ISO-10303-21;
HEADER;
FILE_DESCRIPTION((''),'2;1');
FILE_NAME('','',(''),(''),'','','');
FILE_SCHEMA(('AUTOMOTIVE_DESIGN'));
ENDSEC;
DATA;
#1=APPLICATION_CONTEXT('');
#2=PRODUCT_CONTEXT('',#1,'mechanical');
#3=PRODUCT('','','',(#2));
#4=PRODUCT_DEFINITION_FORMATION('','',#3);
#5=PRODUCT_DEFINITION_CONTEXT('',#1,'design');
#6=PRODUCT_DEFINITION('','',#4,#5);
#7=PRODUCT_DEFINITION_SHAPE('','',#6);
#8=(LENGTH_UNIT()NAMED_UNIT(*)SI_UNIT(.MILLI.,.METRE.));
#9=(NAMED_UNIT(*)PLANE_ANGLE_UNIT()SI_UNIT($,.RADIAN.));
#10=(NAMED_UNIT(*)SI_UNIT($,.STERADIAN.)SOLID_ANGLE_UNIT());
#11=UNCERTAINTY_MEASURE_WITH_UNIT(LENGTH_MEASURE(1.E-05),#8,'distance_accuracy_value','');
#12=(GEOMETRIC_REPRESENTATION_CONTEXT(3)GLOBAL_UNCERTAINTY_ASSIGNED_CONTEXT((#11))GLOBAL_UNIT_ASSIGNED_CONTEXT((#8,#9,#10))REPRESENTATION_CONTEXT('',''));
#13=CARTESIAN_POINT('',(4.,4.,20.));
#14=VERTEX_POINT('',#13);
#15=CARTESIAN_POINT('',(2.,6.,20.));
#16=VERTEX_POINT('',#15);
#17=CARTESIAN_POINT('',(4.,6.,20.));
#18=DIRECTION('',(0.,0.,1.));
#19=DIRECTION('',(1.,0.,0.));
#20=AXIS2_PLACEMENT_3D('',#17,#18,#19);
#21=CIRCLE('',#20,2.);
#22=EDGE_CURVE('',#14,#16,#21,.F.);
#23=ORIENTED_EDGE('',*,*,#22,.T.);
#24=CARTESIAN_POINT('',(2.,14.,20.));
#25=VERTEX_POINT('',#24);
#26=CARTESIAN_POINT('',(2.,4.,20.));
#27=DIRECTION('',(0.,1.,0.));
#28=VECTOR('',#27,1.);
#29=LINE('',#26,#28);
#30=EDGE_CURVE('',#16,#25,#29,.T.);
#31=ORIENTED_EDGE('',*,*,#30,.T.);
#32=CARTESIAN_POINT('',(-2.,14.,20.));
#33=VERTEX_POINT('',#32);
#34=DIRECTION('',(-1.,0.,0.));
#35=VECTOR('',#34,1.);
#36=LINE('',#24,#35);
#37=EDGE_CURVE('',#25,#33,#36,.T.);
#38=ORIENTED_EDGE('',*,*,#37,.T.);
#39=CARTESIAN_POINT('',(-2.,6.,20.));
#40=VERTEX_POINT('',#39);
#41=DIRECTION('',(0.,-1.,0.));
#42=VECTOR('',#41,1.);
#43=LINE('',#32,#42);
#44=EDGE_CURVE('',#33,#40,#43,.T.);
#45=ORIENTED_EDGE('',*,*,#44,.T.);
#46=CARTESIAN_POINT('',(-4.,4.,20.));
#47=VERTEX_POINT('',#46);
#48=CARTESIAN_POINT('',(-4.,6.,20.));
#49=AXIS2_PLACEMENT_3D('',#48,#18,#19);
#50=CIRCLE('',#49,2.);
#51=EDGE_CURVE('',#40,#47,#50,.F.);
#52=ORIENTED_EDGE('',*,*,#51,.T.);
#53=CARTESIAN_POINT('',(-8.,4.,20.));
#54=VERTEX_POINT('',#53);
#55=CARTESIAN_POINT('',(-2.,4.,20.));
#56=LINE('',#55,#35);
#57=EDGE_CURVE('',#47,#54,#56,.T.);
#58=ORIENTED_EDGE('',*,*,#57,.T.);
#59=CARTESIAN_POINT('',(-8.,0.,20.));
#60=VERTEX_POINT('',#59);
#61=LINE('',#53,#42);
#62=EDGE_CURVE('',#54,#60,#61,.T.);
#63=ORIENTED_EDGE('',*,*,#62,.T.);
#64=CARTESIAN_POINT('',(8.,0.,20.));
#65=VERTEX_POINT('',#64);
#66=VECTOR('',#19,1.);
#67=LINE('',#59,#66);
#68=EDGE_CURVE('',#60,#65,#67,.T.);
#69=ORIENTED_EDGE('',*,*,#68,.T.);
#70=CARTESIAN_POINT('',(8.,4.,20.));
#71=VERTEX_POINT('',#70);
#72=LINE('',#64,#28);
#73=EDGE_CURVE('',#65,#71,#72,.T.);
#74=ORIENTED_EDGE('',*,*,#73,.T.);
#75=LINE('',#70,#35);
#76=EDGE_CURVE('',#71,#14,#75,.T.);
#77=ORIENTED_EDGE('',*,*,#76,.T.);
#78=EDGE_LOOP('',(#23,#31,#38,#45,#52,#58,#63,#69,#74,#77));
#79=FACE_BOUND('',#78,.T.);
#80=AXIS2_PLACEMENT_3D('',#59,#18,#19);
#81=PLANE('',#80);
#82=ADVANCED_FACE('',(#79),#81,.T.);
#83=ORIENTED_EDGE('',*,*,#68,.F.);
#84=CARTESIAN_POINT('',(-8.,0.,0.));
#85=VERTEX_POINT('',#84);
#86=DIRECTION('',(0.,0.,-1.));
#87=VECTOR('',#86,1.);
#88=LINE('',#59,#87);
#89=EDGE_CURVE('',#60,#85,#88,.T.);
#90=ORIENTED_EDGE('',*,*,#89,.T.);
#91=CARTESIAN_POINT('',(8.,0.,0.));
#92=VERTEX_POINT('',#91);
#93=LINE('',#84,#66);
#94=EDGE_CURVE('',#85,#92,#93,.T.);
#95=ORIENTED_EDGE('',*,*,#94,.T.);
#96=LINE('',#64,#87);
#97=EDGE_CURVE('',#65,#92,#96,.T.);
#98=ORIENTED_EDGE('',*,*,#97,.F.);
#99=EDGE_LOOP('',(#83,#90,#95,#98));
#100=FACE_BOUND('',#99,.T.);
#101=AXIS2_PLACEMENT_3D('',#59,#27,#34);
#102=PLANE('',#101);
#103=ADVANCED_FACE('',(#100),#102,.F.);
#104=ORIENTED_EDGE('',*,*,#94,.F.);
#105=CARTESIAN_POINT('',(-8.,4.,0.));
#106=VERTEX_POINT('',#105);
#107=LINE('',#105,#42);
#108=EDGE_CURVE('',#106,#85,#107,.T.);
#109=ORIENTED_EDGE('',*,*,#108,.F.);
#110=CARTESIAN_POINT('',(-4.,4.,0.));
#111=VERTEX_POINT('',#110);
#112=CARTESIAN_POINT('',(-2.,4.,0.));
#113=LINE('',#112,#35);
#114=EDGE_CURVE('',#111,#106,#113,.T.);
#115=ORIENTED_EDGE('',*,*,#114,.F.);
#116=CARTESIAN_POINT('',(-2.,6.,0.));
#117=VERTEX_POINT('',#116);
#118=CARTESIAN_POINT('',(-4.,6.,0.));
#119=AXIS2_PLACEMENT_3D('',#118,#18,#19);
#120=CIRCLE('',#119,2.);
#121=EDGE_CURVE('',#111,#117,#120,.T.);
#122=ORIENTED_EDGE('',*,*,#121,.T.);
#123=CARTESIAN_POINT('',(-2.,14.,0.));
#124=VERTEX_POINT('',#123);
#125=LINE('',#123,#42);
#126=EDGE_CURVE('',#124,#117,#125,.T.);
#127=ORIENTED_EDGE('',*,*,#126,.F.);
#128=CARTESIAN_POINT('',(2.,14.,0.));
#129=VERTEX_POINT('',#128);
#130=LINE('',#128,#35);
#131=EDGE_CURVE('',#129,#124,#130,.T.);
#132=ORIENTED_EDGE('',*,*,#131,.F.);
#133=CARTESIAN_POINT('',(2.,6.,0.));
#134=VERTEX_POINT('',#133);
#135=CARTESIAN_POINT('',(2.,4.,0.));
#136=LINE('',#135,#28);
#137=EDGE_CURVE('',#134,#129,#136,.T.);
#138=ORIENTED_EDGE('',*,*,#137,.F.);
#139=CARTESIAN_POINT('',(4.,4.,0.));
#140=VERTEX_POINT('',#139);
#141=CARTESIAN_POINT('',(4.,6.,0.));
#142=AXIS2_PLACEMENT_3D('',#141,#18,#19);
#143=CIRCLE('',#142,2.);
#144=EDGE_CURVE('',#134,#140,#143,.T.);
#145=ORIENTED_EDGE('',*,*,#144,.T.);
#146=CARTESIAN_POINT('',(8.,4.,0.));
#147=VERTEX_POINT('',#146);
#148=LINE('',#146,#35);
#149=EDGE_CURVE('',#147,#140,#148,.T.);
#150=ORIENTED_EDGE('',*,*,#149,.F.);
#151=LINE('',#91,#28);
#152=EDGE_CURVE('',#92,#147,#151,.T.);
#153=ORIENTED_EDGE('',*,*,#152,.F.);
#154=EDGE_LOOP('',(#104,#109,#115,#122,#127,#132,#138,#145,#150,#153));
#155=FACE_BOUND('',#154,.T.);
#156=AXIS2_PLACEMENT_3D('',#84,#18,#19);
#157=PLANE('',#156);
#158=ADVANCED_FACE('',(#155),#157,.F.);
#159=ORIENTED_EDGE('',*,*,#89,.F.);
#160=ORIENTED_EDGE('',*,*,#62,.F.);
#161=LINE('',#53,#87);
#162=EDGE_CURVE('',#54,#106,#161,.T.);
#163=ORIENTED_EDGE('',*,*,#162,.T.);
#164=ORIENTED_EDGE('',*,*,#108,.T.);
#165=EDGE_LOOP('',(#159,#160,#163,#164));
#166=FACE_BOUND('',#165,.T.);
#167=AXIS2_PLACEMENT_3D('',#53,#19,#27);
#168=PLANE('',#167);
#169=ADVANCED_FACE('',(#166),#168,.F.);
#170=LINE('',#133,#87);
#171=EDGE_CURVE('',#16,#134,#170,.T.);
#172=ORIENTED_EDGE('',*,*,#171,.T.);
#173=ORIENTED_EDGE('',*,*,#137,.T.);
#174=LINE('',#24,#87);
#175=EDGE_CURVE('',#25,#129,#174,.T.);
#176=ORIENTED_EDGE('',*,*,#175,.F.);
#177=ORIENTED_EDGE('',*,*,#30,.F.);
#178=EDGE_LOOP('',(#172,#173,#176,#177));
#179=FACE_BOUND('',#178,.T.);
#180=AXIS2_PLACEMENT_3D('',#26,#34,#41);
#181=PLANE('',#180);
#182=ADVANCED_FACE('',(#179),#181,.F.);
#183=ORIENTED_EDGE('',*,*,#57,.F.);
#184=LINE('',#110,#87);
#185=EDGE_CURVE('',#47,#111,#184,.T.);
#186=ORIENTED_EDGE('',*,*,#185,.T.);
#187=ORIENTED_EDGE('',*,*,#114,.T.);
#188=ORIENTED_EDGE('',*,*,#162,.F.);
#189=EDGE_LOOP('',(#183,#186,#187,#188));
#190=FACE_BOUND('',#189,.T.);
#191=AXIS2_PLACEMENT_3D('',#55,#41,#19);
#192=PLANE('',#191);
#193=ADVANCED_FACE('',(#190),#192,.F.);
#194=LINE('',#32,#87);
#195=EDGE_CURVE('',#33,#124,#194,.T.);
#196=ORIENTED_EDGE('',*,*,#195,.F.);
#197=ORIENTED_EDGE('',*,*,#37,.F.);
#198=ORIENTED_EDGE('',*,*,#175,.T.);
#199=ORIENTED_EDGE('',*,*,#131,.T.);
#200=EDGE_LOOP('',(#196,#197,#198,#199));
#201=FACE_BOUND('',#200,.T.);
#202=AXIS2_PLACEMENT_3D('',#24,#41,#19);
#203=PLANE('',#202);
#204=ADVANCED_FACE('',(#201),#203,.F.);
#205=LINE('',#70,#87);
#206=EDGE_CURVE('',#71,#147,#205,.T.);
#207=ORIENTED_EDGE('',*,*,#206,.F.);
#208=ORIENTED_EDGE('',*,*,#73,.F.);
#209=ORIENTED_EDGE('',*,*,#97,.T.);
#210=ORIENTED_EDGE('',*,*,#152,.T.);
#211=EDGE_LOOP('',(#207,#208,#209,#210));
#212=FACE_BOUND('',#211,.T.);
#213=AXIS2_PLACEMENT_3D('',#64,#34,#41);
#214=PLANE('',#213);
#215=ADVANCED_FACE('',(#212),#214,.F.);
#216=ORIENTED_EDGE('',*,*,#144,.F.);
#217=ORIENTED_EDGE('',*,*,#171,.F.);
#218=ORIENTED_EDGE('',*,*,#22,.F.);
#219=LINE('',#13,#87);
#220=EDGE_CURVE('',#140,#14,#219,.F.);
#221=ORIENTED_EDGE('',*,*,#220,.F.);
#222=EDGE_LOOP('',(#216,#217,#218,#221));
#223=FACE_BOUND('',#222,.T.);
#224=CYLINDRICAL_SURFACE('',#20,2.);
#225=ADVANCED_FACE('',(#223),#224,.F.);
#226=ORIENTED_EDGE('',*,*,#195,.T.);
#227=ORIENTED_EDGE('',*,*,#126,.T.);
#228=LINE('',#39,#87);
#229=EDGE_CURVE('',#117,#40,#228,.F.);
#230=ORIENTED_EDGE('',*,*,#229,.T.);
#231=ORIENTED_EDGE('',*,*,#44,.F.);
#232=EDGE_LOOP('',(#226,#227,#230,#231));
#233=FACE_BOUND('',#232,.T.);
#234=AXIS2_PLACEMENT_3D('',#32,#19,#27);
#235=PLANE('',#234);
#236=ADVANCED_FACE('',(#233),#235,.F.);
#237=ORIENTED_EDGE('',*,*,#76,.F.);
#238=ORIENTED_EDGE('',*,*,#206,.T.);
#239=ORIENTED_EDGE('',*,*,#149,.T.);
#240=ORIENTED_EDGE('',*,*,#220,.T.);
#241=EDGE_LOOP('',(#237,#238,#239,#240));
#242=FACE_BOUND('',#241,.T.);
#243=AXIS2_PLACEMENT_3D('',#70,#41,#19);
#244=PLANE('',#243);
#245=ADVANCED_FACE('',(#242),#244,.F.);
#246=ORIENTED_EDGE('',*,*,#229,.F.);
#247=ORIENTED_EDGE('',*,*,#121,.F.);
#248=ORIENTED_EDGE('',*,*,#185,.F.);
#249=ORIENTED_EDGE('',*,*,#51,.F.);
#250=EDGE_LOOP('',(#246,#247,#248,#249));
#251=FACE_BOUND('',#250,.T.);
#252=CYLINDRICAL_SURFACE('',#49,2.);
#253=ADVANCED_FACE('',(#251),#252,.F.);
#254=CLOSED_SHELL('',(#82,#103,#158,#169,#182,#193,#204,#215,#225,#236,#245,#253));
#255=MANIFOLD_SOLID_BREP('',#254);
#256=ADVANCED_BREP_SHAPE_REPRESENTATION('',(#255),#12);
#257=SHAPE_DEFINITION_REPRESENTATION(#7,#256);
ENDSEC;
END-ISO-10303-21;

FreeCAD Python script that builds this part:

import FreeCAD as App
import Part
import Sketcher
from FreeCAD import Vector


def edges_at(feature, points):
    """Names of the edges that pass closest to the given points."""
    edges = feature.Shape.Edges
    near = lambda p: min(range(len(edges)), key=lambda i: edges[i].distToShape(Part.Vertex(*p))[0])
    return sorted({f"Edge{near(p) + 1}" for p in points})

doc = App.newDocument("Part")
body = doc.addObject("PartDesign::Body", "Body")

sketch1 = body.newObject("Sketcher::SketchObject", "Sketch")
sketch1.AttachmentSupport = (doc.getObject("XY_Plane"), [""])
sketch1.MapMode = "FlatFace"
sketch1.addGeometry([
    Part.LineSegment(Vector(-8, 0, 0), Vector(8, 0, 0)),
    Part.LineSegment(Vector(8, 0, 0), Vector(8, 4, 0)),
    Part.LineSegment(Vector(8, 4, 0), Vector(2, 4, 0)),
    Part.LineSegment(Vector(2, 4, 0), Vector(2, 14, 0)),
    Part.LineSegment(Vector(2, 14, 0), Vector(-2, 14, 0)),
    Part.LineSegment(Vector(-2, 14, 0), Vector(-2, 4, 0)),
    Part.LineSegment(Vector(-2, 4, 0), Vector(-8, 4, 0)),
    Part.LineSegment(Vector(-8, 4, 0), Vector(-8, 0, 0)),
], False)
sketch1.addConstraint([
    Sketcher.Constraint("Coincident", 0, 2, 1, 1),
    Sketcher.Constraint("Coincident", 1, 2, 2, 1),
    Sketcher.Constraint("Coincident", 2, 2, 3, 1),
    Sketcher.Constraint("Coincident", 3, 2, 4, 1),
    Sketcher.Constraint("Coincident", 4, 2, 5, 1),
    Sketcher.Constraint("Coincident", 5, 2, 6, 1),
    Sketcher.Constraint("Coincident", 6, 2, 7, 1),
    Sketcher.Constraint("Coincident", 7, 2, 0, 1),
    Sketcher.Constraint("Horizontal", 0),
    Sketcher.Constraint("Vertical", 1),
    Sketcher.Constraint("Horizontal", 2),
    Sketcher.Constraint("Vertical", 3),
    Sketcher.Constraint("Horizontal", 4),
    Sketcher.Constraint("Vertical", 5),
    Sketcher.Constraint("Horizontal", 6),
    Sketcher.Constraint("Vertical", 7),
    Sketcher.Constraint("Symmetric", 0, 2, 7, 2, -1, 1),
    Sketcher.Constraint("Symmetric", 2, 2, 5, 2, -2),
    Sketcher.Constraint("Equal", 4, 1),
    Sketcher.Constraint("DistanceX", 0, 1, 0, 2, 16.0),
    Sketcher.Constraint("DistanceX", 2, 2, 2, 1, 6.0),
    Sketcher.Constraint("DistanceY", 3, 1, 3, 2, 10.0),
])
pad1 = body.newObject("PartDesign::Pad", "Pad")
pad1.Profile = sketch1
pad1.Length = 20
doc.recompute()

fillet = body.newObject("PartDesign::Fillet", "Fillet")
fillet.Base = (pad1, edges_at(pad1, [(-2, 4, 10), (2, 4, 10)]))
fillet.Radius = 2

doc.recompute()
